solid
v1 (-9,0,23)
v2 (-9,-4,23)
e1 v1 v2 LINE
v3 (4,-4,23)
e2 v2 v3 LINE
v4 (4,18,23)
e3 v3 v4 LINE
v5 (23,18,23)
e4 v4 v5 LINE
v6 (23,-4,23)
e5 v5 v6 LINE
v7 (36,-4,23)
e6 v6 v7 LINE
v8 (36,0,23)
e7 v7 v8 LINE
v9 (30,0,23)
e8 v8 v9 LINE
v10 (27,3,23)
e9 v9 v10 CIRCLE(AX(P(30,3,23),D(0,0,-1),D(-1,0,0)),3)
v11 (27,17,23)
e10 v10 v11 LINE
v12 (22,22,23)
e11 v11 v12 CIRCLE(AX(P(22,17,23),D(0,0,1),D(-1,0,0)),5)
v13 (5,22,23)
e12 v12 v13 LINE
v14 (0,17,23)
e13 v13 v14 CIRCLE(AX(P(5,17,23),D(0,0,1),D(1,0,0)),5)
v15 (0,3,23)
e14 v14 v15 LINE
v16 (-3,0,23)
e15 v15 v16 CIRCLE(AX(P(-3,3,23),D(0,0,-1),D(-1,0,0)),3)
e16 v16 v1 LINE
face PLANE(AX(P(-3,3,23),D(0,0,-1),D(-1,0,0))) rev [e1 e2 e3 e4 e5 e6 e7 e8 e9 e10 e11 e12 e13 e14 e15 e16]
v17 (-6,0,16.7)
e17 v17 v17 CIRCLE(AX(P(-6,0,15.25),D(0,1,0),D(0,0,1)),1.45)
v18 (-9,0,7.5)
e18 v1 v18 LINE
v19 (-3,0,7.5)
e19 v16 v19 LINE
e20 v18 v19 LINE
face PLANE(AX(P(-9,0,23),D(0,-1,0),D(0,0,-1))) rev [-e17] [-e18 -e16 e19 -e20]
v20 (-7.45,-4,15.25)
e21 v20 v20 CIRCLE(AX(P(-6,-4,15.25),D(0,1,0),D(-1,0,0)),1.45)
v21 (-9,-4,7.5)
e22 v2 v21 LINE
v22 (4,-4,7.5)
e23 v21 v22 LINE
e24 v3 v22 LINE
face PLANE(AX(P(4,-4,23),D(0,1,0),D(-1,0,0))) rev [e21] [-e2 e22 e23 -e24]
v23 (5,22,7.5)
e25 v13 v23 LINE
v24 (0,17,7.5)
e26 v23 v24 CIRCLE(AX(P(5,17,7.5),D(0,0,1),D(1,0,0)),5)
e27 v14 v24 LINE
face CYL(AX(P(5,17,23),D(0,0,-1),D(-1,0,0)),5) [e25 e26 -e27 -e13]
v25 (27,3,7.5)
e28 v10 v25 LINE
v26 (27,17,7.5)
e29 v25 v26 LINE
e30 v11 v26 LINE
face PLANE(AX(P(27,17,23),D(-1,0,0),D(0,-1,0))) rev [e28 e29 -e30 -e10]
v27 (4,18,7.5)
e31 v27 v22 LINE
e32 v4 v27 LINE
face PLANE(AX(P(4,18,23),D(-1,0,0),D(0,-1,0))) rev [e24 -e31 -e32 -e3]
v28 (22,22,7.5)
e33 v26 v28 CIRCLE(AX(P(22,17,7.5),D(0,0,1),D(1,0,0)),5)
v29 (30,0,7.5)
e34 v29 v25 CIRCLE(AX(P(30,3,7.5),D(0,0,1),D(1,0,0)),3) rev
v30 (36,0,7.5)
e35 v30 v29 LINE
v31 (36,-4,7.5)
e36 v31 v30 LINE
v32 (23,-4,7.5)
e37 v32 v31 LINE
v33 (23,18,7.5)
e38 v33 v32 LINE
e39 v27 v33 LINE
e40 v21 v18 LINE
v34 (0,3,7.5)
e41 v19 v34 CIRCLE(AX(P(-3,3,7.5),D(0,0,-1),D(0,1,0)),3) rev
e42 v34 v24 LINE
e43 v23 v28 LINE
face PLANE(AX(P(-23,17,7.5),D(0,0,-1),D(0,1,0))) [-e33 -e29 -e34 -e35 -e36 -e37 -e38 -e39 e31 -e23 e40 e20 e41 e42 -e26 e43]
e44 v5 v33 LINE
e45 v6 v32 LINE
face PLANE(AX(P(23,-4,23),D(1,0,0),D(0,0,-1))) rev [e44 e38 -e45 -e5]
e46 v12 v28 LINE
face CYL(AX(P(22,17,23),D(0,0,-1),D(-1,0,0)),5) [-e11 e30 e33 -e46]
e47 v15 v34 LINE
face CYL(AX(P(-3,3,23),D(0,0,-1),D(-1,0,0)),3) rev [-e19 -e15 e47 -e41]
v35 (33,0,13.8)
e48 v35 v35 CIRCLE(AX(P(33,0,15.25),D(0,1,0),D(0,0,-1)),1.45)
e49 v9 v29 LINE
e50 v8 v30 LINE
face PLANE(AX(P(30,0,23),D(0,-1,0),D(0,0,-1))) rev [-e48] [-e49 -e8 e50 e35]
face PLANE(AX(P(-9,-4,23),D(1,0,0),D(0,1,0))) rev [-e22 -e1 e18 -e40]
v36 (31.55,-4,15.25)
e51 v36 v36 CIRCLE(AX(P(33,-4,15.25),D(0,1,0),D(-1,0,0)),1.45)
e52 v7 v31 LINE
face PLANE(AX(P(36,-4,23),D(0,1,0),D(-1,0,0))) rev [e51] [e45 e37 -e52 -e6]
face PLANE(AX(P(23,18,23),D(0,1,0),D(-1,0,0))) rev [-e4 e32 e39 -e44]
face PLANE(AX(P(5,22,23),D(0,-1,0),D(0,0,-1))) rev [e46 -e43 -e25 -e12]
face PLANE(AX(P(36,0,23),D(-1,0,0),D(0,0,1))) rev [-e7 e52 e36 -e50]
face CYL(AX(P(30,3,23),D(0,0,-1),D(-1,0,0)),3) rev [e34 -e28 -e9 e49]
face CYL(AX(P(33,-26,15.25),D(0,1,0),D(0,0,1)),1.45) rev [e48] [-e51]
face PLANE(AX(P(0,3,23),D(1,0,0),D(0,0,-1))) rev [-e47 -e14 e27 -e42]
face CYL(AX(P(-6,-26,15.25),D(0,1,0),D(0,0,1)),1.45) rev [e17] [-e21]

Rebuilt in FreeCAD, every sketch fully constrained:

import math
import FreeCAD as App
import Part
import Sketcher

V = App.Vector
Q = App.Units.Quantity


def add_polygon(sketch, points):
    """Adds a closed chain of lines whose ends are joined by coincident constraints."""
    first, n = sketch.GeometryCount, len(points)
    for a, b in zip(points, points[1:] + points[:1]):
        sketch.addGeometry(Part.LineSegment(App.Vector(*a, 0), App.Vector(*b, 0)), False)
    for i in range(n):
        sketch.addConstraint(Sketcher.Constraint("Coincident", first + i, 2, first + (i + 1) % n, 1))

doc = App.newDocument("Part")
body = doc.addObject("PartDesign::Body", "Body")

# Sketch on XY plane
sketch1 = doc.addObject("Sketcher::SketchObject", "Sketch")
body.addObject(sketch1)
sketch1.AttachmentSupport = (doc.XY_Plane, [""])
sketch1.MapMode = "FlatFace"
sketch1.addGeometry(Part.LineSegment(V(0, 17, 0), V(0, 3, 0)), False)
sketch1.addGeometry(Part.ArcOfCircle(Part.Circle(V(-3, 3, 0), V(0, 0, 1), 3), math.radians(-90), math.radians(0)), False)
sketch1.addGeometry(Part.LineSegment(V(-3, 0, 0), V(-9, 0, 0)), False)
sketch1.addGeometry(Part.LineSegment(V(-9, 0, 0), V(-9, -4, 0)), False)
sketch1.addGeometry(Part.LineSegment(V(-9, -4, 0), V(4, -4, 0)), False)
sketch1.addGeometry(Part.LineSegment(V(4, -4, 0), V(4, 18, 0)), False)
sketch1.addGeometry(Part.LineSegment(V(4, 18, 0), V(23, 18, 0)), False)
sketch1.addGeometry(Part.LineSegment(V(23, 18, 0), V(23, -4, 0)), False)
sketch1.addGeometry(Part.LineSegment(V(23, -4, 0), V(36, -4, 0)), False)
sketch1.addGeometry(Part.LineSegment(V(36, -4, 0), V(36, 0, 0)), False)
sketch1.addGeometry(Part.LineSegment(V(36, 0, 0), V(30, 0, 0)), False)
sketch1.addGeometry(Part.ArcOfCircle(Part.Circle(V(30, 3, 0), V(0, 0, 1), 3), math.radians(180), math.radians(270)), False)
sketch1.addGeometry(Part.LineSegment(V(27, 3, 0), V(27, 17, 0)), False)
sketch1.addGeometry(Part.ArcOfCircle(Part.Circle(V(22, 17, 0), V(0, 0, 1), 5), math.radians(0), math.radians(90)), False)
sketch1.addGeometry(Part.LineSegment(V(22, 22, 0), V(5, 22, 0)), False)
sketch1.addGeometry(Part.ArcOfCircle(Part.Circle(V(5, 17, 0), V(0, 0, 1), 5), math.radians(90), math.radians(180)), False)
sketch1.addConstraint(Sketcher.Constraint("Tangent", 0, 2, 1, 2))
sketch1.addConstraint(Sketcher.Constraint("Tangent", 1, 1, 2, 1))
sketch1.addConstraint(Sketcher.Constraint("Coincident", 2, 2, 3, 1))
sketch1.addConstraint(Sketcher.Constraint("Coincident", 3, 2, 4, 1))
sketch1.addConstraint(Sketcher.Constraint("Coincident", 4, 2, 5, 1))
sketch1.addConstraint(Sketcher.Constraint("Coincident", 5, 2, 6, 1))
sketch1.addConstraint(Sketcher.Constraint("Coincident", 6, 2, 7, 1))
sketch1.addConstraint(Sketcher.Constraint("Coincident", 7, 2, 8, 1))
sketch1.addConstraint(Sketcher.Constraint("Coincident", 8, 2, 9, 1))
sketch1.addConstraint(Sketcher.Constraint("Coincident", 9, 2, 10, 1))
sketch1.addConstraint(Sketcher.Constraint("Tangent", 10, 2, 11, 2))
sketch1.addConstraint(Sketcher.Constraint("Tangent", 11, 1, 12, 1))
sketch1.addConstraint(Sketcher.Constraint("Tangent", 12, 2, 13, 1))
sketch1.addConstraint(Sketcher.Constraint("Tangent", 13, 2, 14, 1))
sketch1.addConstraint(Sketcher.Constraint("Tangent", 14, 2, 15, 1))
sketch1.addConstraint(Sketcher.Constraint("Tangent", 15, 2, 0, 1))
sketch1.addConstraint(Sketcher.Constraint("Vertical", 0))
sketch1.addConstraint(Sketcher.Constraint("Horizontal", 2))
sketch1.addConstraint(Sketcher.Constraint("Vertical", 3))
sketch1.addConstraint(Sketcher.Constraint("Horizontal", 4))
sketch1.addConstraint(Sketcher.Constraint("Vertical", 5))
sketch1.addConstraint(Sketcher.Constraint("Horizontal", 6))
sketch1.addConstraint(Sketcher.Constraint("Vertical", 7))
sketch1.addConstraint(Sketcher.Constraint("Horizontal", 8))
sketch1.addConstraint(Sketcher.Constraint("Vertical", 9))
sketch1.addConstraint(Sketcher.Constraint("Horizontal", 10))
sketch1.addConstraint(Sketcher.Constraint("Vertical", 12))
sketch1.addConstraint(Sketcher.Constraint("Horizontal", 14))
sketch1.addConstraint(Sketcher.Constraint("Equal", 1, 11))
sketch1.addConstraint(Sketcher.Constraint("Equal", 13, 15))
sketch1.addConstraint(Sketcher.Constraint("PointOnObject", 0, 2, -2))
sketch1.addConstraint(Sketcher.Constraint("PointOnObject", 1, 1, -1))
sketch1.addConstraint(Sketcher.Constraint("PointOnObject", 9, 2, -1))
sketch1.addConstraint(Sketcher.Constraint("Horizontal", 4, 2, 7, 2))
sketch1.addConstraint(Sketcher.Constraint("Equal", 4, 8))
sketch1.addConstraint(Sketcher.Constraint("Equal", 2, 10))
sketch1.addConstraint(Sketcher.Constraint("Radius", 1, Q("3 mm")))
sketch1.addConstraint(Sketcher.Constraint("Radius", 13, Q("5 mm")))
sketch1.addConstraint(Sketcher.Constraint("DistanceX", 2, 2, 2, 1, Q("6 mm")))
sketch1.addConstraint(Sketcher.Constraint("DistanceX", 4, 1, 4, 2, Q("13 mm")))
sketch1.addConstraint(Sketcher.Constraint("DistanceX", 6, 1, 6, 2, Q("19 mm")))
sketch1.addConstraint(Sketcher.Constraint("DistanceY", 0, 2, 0, 1, Q("14 mm")))
sketch1.addConstraint(Sketcher.Constraint("DistanceY", 3, 2, 3, 1, Q("4 mm")))
sketch1.addConstraint(Sketcher.Constraint("DistanceY", 5, 1, 5, 2, Q("22 mm")))
pad1 = doc.addObject("PartDesign::Pad", "Pad")
body.addObject(pad1)
pad1.Profile = sketch1
pad1.Length = 23

# Sketch on YZ plane
sketch2 = doc.addObject("Sketcher::SketchObject", "Sketch001")
body.addObject(sketch2)
sketch2.AttachmentSupport = (doc.YZ_Plane, [""])
sketch2.MapMode = "FlatFace"
add_polygon(sketch2, [(17, 4), (-4, 4), (-4, 7.5), (17, 7.5)])  # lines 0-3
sketch2.addConstraint(Sketcher.Constraint("Horizontal", 0))
sketch2.addConstraint(Sketcher.Constraint("Vertical", 1))
sketch2.addConstraint(Sketcher.Constraint("Horizontal", 2))
sketch2.addConstraint(Sketcher.Constraint("Vertical", 3))
sketch2.addConstraint(Sketcher.Constraint("DistanceX", 0, 2, 0, 1, Q("21 mm")))
sketch2.addConstraint(Sketcher.Constraint("DistanceY", 1, 1, 1, 2, Q("3.5 mm")))
sketch2.addConstraint(Sketcher.Constraint("DistanceX", 0, 2, -1, 1, Q("4 mm")))
sketch2.addConstraint(Sketcher.Constraint("DistanceY", -1, 1, 0, 2, Q("4 mm")))
pocket1 = doc.addObject("PartDesign::Pocket", "Pocket")
body.addObject(pocket1)
pocket1.Profile = sketch2
pocket1.Type = "TwoLengths"
pocket1.Length = 23
pocket1.Length2 = 10

# Sketch on XZ plane
sketch3 = doc.addObject("Sketcher::SketchObject", "Sketch002")
body.addObject(sketch3)
sketch3.AttachmentSupport = (doc.XZ_Plane, [""])
sketch3.MapMode = "FlatFace"
sketch3.AttachmentOffset = App.Placement(V(0, 0, -22), App.Rotation())
add_polygon(sketch3, [(-9, 0), (-9, 7.5), (36, 7.5), (36, 0)])  # lines 0-3
sketch3.addConstraint(Sketcher.Constraint("Vertical", 0))
sketch3.addConstraint(Sketcher.Constraint("Horizontal", 1))
sketch3.addConstraint(Sketcher.Constraint("Vertical", 2))
sketch3.addConstraint(Sketcher.Constraint("Horizontal", 3))
sketch3.addConstraint(Sketcher.Constraint("PointOnObject", 2, 2, -1))
sketch3.addConstraint(Sketcher.Constraint("DistanceX", 1, 1, 1, 2, Q("45 mm")))
sketch3.addConstraint(Sketcher.Constraint("DistanceY", 0, 1, 0, 2, Q("7.5 mm")))
sketch3.addConstraint(Sketcher.Constraint("DistanceX", 0, 2, -1, 1, Q("9 mm")))
pocket2 = doc.addObject("PartDesign::Pocket", "Pocket001")
body.addObject(pocket2)
pocket2.Profile = sketch3
pocket2.Length = 26
pocket2.Reversed = True

# Sketch on XZ plane
sketch4 = doc.addObject("Sketcher::SketchObject", "Sketch003")
body.addObject(sketch4)
sketch4.AttachmentSupport = (doc.XZ_Plane, [""])
sketch4.MapMode = "FlatFace"
sketch4.addGeometry(Part.Circle(V(-6, 15.25, 0), V(0, 0, 1), 1.45), False)
sketch4.addGeometry(Part.Circle(V(33, 15.25, 0), V(0, 0, 1), 1.45), False)
sketch4.addConstraint(Sketcher.Constraint("Equal", 0, 1))
sketch4.addConstraint(Sketcher.Constraint("Horizontal", 0, 3, 1, 3))
sketch4.addConstraint(Sketcher.Constraint("Diameter", 0, Q("2.9 mm")))
sketch4.addConstraint(Sketcher.Constraint("DistanceX", 0, 3, -1, 1, Q("6 mm")))
sketch4.addConstraint(Sketcher.Constraint("DistanceX", -1, 1, 1, 3, Q("33 mm")))
sketch4.addConstraint(Sketcher.Constraint("DistanceY", -1, 1, 0, 3, Q("15.25 mm")))
pocket3 = doc.addObject("PartDesign::Pocket", "Pocket002")
body.addObject(pocket3)
pocket3.Profile = sketch4
pocket3.Length = 26
pocket3.Reversed = True

doc.recompute()
